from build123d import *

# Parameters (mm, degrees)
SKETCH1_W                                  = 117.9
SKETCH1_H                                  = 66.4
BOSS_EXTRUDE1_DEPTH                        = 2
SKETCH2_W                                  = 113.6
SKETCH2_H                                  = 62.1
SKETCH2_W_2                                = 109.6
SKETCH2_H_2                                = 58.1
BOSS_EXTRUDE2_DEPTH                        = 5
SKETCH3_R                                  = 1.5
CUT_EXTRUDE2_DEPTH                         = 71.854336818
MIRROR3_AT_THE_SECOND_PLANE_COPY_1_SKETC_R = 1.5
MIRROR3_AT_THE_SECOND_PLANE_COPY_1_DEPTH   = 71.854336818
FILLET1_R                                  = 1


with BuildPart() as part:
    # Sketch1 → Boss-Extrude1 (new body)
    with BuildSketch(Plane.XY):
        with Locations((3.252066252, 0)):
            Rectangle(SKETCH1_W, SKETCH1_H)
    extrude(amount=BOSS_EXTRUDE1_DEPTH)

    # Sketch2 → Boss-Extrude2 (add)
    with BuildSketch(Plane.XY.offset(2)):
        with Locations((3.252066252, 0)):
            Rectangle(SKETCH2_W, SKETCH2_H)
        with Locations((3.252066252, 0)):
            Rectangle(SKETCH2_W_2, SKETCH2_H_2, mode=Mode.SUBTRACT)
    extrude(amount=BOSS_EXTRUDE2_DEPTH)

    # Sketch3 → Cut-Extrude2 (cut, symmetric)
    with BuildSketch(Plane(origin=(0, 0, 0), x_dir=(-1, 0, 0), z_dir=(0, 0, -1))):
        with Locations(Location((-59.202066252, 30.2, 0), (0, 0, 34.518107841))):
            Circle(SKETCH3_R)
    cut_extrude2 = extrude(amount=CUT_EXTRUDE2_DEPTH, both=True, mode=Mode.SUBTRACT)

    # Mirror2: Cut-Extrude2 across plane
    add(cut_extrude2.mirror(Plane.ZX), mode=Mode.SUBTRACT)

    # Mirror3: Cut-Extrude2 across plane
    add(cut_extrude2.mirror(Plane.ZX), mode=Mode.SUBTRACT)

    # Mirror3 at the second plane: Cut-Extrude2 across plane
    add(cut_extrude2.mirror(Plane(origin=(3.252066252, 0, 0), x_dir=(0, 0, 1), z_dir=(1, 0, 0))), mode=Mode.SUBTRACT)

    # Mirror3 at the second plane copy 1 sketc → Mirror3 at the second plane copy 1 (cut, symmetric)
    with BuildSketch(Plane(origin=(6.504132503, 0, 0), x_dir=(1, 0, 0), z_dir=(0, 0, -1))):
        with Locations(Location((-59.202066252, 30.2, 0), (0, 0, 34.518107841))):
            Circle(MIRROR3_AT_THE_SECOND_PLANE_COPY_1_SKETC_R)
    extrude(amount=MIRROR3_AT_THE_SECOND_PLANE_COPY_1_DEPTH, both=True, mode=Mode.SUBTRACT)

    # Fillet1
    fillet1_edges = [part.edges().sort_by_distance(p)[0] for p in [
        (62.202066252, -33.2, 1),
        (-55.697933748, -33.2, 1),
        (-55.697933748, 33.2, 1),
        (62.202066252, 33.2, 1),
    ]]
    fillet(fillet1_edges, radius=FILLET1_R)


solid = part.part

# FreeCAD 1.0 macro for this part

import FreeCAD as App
import Part
import Sketcher
from FreeCAD import Vector


def edges_at(feature, points):
    """Names of the edges that pass closest to the given points."""
    edges = feature.Shape.Edges
    near = lambda p: min(range(len(edges)), key=lambda i: edges[i].distToShape(Part.Vertex(*p))[0])
    return sorted({f"Edge{near(p) + 1}" for p in points})


def add_polygon(sketch, points):
    """Adds a closed chain of lines whose ends are joined by coincident constraints."""
    first, n = sketch.GeometryCount, len(points)
    for a, b in zip(points, points[1:] + points[:1]):
        sketch.addGeometry(Part.LineSegment(App.Vector(*a, 0), App.Vector(*b, 0)), False)
    for i in range(n):
        sketch.addConstraint(Sketcher.Constraint("Coincident", first + i, 2, first + (i + 1) % n, 1))

doc = App.newDocument("Part")
params = doc.addObject("Spreadsheet::Sheet", "Params")
for row, (alias, value) in enumerate([
    ("sketch1_width", "117.9 mm"),
    ("sketch1_height", "66.4 mm"),
    ("pad1_length", "2 mm"),
    ("sketch2_width", "113.6 mm"),
    ("sketch2_width2", "109.6 mm"),
    ("sketch2_height", "62.1 mm"),
    ("sketch2_height2", "58.1 mm"),
    ("pad2_length", "5 mm"),
    ("sketch3_diameter", "3 mm"),
    ("pocket1_length", "143.708674 mm"),
    ("sketch4_diameter", "3 mm"),
    ("pocket2_length", "143.708674 mm"),
    ("fillet_radius", "1 mm"),
], start=1):
    params.set(f"A{row}", alias)
    params.set(f"B{row}", "=" + value)
    params.setAlias(f"B{row}", alias)

body = doc.addObject("PartDesign::Body", "Body")

sketch1 = body.newObject("Sketcher::SketchObject", "Sketch")
sketch1.AttachmentSupport = (doc.getObject("XY_Plane"), [""])
sketch1.MapMode = "FlatFace"
add_polygon(sketch1, [(-56, 33), (-56, -33), (62, -33), (62, 33)])
sketch1.addConstraint(Sketcher.Constraint("Vertical", 0))
sketch1.addConstraint(Sketcher.Constraint("Horizontal", 1))
sketch1.addConstraint(Sketcher.Constraint("Vertical", 2))
sketch1.addConstraint(Sketcher.Constraint("Horizontal", 3))
sketch1.addConstraint(Sketcher.Constraint("DistanceX", 1, 1, 1, 2, 117.9))
sketch1.addConstraint(Sketcher.Constraint("DistanceY", 0, 2, 0, 1, 66.4))
sketch1.addConstraint(Sketcher.Constraint("DistanceY", 0, 2, -1, 1, 33.2))
sketch1.addConstraint(Sketcher.Constraint("DistanceX", 0, 2, -1, 1, 55.697934))
sketch1.setExpression("Constraints[8]", "Params.sketch1_width")
sketch1.setExpression("Constraints[9]", "Params.sketch1_height")
pad1 = body.newObject("PartDesign::Pad", "Pad")
pad1.Profile = sketch1
pad1.setExpression("Length", "Params.pad1_length")

sketch2 = body.newObject("Sketcher::SketchObject", "Sketch001")
sketch2.AttachmentSupport = (doc.getObject("XY_Plane"), [""])
sketch2.MapMode = "FlatFace"
sketch2.AttachmentOffset = App.Placement(Vector(0, 0, 2), App.Rotation())
add_polygon(sketch2, [(-54, 31), (-54, -31), (60, -31), (60, 31)])
add_polygon(sketch2, [(58, -29), (-52, -29), (-52, 29), (58, 29)])
sketch2.addConstraint(Sketcher.Constraint("Vertical", 0))
sketch2.addConstraint(Sketcher.Constraint("Horizontal", 1))
sketch2.addConstraint(Sketcher.Constraint("Vertical", 2))
sketch2.addConstraint(Sketcher.Constraint("Horizontal", 3))
sketch2.addConstraint(Sketcher.Constraint("Horizontal", 4))
sketch2.addConstraint(Sketcher.Constraint("Vertical", 5))
sketch2.addConstraint(Sketcher.Constraint("Horizontal", 6))
sketch2.addConstraint(Sketcher.Constraint("Vertical", 7))
sketch2.addConstraint(Sketcher.Constraint("DistanceX", 1, 1, 1, 2, 113.6))
sketch2.addConstraint(Sketcher.Constraint("DistanceX", 4, 2, 4, 1, 109.6))
sketch2.addConstraint(Sketcher.Constraint("DistanceY", 0, 2, 0, 1, 62.1))
sketch2.addConstraint(Sketcher.Constraint("DistanceY", 5, 1, 5, 2, 58.1))
sketch2.addConstraint(Sketcher.Constraint("DistanceX", 0, 2, 4, 2, 2.0))
sketch2.addConstraint(Sketcher.Constraint("DistanceY", 0, 2, 4, 2, 2.0))
sketch2.addConstraint(Sketcher.Constraint("DistanceY", 0, 2, -1, 1, 31.05))
sketch2.addConstraint(Sketcher.Constraint("DistanceX", 0, 2, -1, 1, 53.547934))
sketch2.setExpression("Constraints[16]", "Params.sketch2_width")
sketch2.setExpression("Constraints[17]", "Params.sketch2_width2")
sketch2.setExpression("Constraints[18]", "Params.sketch2_height")
sketch2.setExpression("Constraints[19]", "Params.sketch2_height2")
pad2 = body.newObject("PartDesign::Pad", "Pad001")
pad2.Profile = sketch2
pad2.setExpression("Length", "Params.pad2_length")

sketch3 = body.newObject("Sketcher::SketchObject", "Sketch002")
sketch3.AttachmentSupport = (doc.getObject("XY_Plane"), [""])
sketch3.MapMode = "FlatFace"
sketch3.addGeometry(Part.Circle(Vector(59.2, 30.2, 0), Vector(0, 0, 1), 1.5), False)
sketch3.addConstraint(Sketcher.Constraint("Diameter", 0, 3.0))
sketch3.addConstraint(Sketcher.Constraint("DistanceY", -1, 1, 0, 3, 30.2))
sketch3.addConstraint(Sketcher.Constraint("DistanceX", -1, 1, 0, 3, 59.202066))
sketch3.setExpression("Constraints[0]", "Params.sketch3_diameter")
pocket1 = body.newObject("PartDesign::Pocket", "Pocket")
pocket1.Profile = sketch3
pocket1.setExpression("Length", "Params.pocket1_length")
pocket1.Midplane = True
doc.recompute()

mirrored = body.newObject("PartDesign::Mirrored", "Mirrored")
mirrored.Originals = [pocket1]
mirrored.MirrorPlane = (doc.getObject("XZ_Plane"), [""])
body.Tip = mirrored
doc.recompute()

mirrored2 = body.newObject("PartDesign::Mirrored", "Mirrored001")
mirrored2.Originals = [pocket1]
mirrored2.MirrorPlane = (doc.getObject("XZ_Plane"), [""])
body.Tip = mirrored2
doc.recompute()

datumplane = body.newObject("PartDesign::Plane", "DatumPlane")
datumplane.AttachmentSupport = (doc.getObject("YZ_Plane"), [""])
datumplane.MapMode = "FlatFace"
datumplane.AttachmentOffset = App.Placement(Vector(0, 0, 3.252066), App.Rotation())
mirrored3 = body.newObject("PartDesign::Mirrored", "Mirrored002")
mirrored3.Originals = [pocket1]
mirrored3.MirrorPlane = (datumplane, [""])
body.Tip = mirrored3

sketch4 = body.newObject("Sketcher::SketchObject", "Sketch003")
sketch4.AttachmentSupport = (doc.getObject("XY_Plane"), [""])
sketch4.MapMode = "FlatFace"
sketch4.addGeometry(Part.Circle(Vector(-52.7, -30.2, 0), Vector(0, 0, 1), 1.5), False)
sketch4.addConstraint(Sketcher.Constraint("Diameter", 0, 3.0))
sketch4.addConstraint(Sketcher.Constraint("DistanceY", 0, 3, -1, 1, 30.2))
sketch4.addConstraint(Sketcher.Constraint("DistanceX", 0, 3, -1, 1, 52.697934))
sketch4.setExpression("Constraints[0]", "Params.sketch4_diameter")
pocket2 = body.newObject("PartDesign::Pocket", "Pocket001")
pocket2.Profile = sketch4
pocket2.setExpression("Length", "Params.pocket2_length")
pocket2.Midplane = True
doc.recompute()

fillet = body.newObject("PartDesign::Fillet", "Fillet")
fillet.Base = (pocket2, edges_at(pocket2, [
    (62.202, -33.2, 1),
    (-55.698, -33.2, 1),
    (-55.698, 33.2, 1),
    (62.202, 33.2, 1),
]))
fillet.setExpression("Radius", "Params.fillet_radius")

doc.recompute()
